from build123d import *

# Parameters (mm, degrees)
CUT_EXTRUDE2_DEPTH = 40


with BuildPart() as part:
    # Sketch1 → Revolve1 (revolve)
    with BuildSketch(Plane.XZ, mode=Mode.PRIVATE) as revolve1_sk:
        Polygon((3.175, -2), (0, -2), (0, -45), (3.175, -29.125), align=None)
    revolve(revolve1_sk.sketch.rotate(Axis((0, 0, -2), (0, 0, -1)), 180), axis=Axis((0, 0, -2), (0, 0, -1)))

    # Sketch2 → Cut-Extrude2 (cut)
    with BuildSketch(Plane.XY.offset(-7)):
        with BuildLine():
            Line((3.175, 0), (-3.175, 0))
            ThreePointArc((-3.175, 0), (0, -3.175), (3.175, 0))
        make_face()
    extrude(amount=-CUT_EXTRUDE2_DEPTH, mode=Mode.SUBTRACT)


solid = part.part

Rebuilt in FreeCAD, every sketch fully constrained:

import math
import FreeCAD as App
import Part
import Sketcher

V = App.Vector

doc = App.newDocument("Part")
body = doc.addObject("PartDesign::Body", "Body")

sketch1 = body.newObject("Sketcher::SketchObject", "Sketch")
sketch1.AttachmentSupport = (doc.getObject("XZ_Plane"), [""])
sketch1.MapMode = "FlatFace"
sketch1.addGeometry(Part.LineSegment(V(3.175, -2, 0), V(0, -2, 0)), False)
sketch1.addGeometry(Part.LineSegment(V(0, -2, 0), V(0, -45, 0)), False)
sketch1.addGeometry(Part.LineSegment(V(0, -45, 0), V(3.175, -29.125, 0)), False)
sketch1.addGeometry(Part.LineSegment(V(3.175, -29.125, 0), V(3.175, -2, 0)), False)
sketch1.addConstraint(Sketcher.Constraint("Coincident", 0, 2, 1, 1))
sketch1.addConstraint(Sketcher.Constraint("Coincident", 1, 2, 2, 1))
sketch1.addConstraint(Sketcher.Constraint("Coincident", 2, 2, 3, 1))
sketch1.addConstraint(Sketcher.Constraint("Coincident", 3, 2, 0, 1))
sketch1.addConstraint(Sketcher.Constraint("Horizontal", 0))
sketch1.addConstraint(Sketcher.Constraint("Vertical", 1))
sketch1.addConstraint(Sketcher.Constraint("Vertical", 3))
sketch1.addConstraint(Sketcher.Constraint("PointOnObject", 0, 2, -2))
sketch1.addConstraint(Sketcher.Constraint("DistanceY", 1, 2, 1, 1, 43.0))
sketch1.addConstraint(Sketcher.Constraint("DistanceY", 0, 2, -1, 1, 2.0))
sketch1.addConstraint(Sketcher.Constraint("DistanceX", 0, 2, 0, 1, 3.175))
sketch1.addConstraint(Sketcher.Constraint("DistanceY", 3, 1, 3, 2, 27.125))
revolution = body.newObject("PartDesign::Revolution", "Revolution")
revolution.Profile = sketch1
revolution.ReferenceAxis = (sketch1, ["V_Axis"])
revolution.Angle = 360

sketch2 = body.newObject("Sketcher::SketchObject", "Sketch001")
sketch2.AttachmentSupport = (doc.getObject("XY_Plane"), [""])
sketch2.MapMode = "FlatFace"
sketch2.AttachmentOffset = App.Placement(V(0, 0, -7), App.Rotation())
sketch2.addGeometry(Part.LineSegment(V(3.175, 0, 0), V(-3.175, 0, 0)), False)
sketch2.addGeometry(Part.ArcOfCircle(Part.Circle(V(0, 0, 0), V(0, 0, 1), 3.175), math.radians(180), math.radians(360)), False)
sketch2.addConstraint(Sketcher.Constraint("Coincident", 0, 1, 1, 2))
sketch2.addConstraint(Sketcher.Constraint("Coincident", 1, 1, 0, 2))
sketch2.addConstraint(Sketcher.Constraint("Horizontal", 0))
sketch2.addConstraint(Sketcher.Constraint("Coincident", 1, 3, -1, 1))
sketch2.addConstraint(Sketcher.Constraint("PointOnObject", 0, 1, -1))
sketch2.addConstraint(Sketcher.Constraint("Radius", 1, 3.175))
pocket1 = body.newObject("PartDesign::Pocket", "Pocket")
pocket1.Profile = sketch2
pocket1.Length = 40

doc.recompute()
